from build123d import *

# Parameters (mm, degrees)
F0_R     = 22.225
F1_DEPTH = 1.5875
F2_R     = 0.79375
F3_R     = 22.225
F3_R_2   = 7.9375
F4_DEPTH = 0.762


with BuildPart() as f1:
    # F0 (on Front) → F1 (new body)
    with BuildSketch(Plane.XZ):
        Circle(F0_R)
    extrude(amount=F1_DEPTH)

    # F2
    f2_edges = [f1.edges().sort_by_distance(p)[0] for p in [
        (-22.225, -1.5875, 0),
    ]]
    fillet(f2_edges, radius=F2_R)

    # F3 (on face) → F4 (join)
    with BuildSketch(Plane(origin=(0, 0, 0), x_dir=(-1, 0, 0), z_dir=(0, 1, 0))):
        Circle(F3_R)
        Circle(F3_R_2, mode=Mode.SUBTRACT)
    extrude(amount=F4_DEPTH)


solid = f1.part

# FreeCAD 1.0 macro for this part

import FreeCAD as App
import Part
import Sketcher
from FreeCAD import Vector
Q = App.Units.Quantity


def edges_at(feature, points):
    """Names of the edges that pass closest to the given points."""
    edges = feature.Shape.Edges
    near = lambda p: min(range(len(edges)), key=lambda i: edges[i].distToShape(Part.Vertex(*p))[0])
    return sorted({f"Edge{near(p) + 1}" for p in points})

doc = App.newDocument("Part")
body = doc.addObject("PartDesign::Body", "Body")

# Sketch on XZ plane
sketch1 = body.newObject("Sketcher::SketchObject", "Sketch")
sketch1.AttachmentSupport = (doc.getObject("XZ_Plane"), [""])
sketch1.MapMode = "FlatFace"
sketch1.addGeometry(Part.Circle(Vector(0, 0, 0), Vector(0, 0, 1), 22), False)
sketch1.addConstraint(Sketcher.Constraint("Coincident", 0, 3, -1, 1))
sketch1.addConstraint(Sketcher.Constraint("Diameter", 0, Q("1.75 in")))
pad1 = body.newObject("PartDesign::Pad", "Pad")
pad1.Profile = sketch1
pad1.Length = Q("0.0625 in")
doc.recompute()

fillet = body.newObject("PartDesign::Fillet", "Fillet")
fillet.Base = (pad1, edges_at(pad1, [(-22.225, -1.587, 0)]))
fillet.Radius = Q("0.03125 in")

# Sketch on XZ plane
sketch2 = body.newObject("Sketcher::SketchObject", "Sketch001")
sketch2.AttachmentSupport = (doc.getObject("XZ_Plane"), [""])
sketch2.MapMode = "FlatFace"
sketch2.addGeometry(Part.Circle(Vector(0, 0, 0), Vector(0, 0, 1), 22), False)
sketch2.addGeometry(Part.Circle(Vector(0, 0, 0), Vector(0, 0, 1), 8), False)
sketch2.addConstraint(Sketcher.Constraint("Coincident", 0, 3, -1, 1))
sketch2.addConstraint(Sketcher.Constraint("Coincident", 1, 3, -1, 1))
sketch2.addConstraint(Sketcher.Constraint("Diameter", 0, Q("1.75 in")))
sketch2.addConstraint(Sketcher.Constraint("Diameter", 1, Q("0.625 in")))
pad2 = body.newObject("PartDesign::Pad", "Pad001")
pad2.Profile = sketch2
pad2.Length = Q("0.03 in")
pad2.Reversed = True

doc.recompute()
